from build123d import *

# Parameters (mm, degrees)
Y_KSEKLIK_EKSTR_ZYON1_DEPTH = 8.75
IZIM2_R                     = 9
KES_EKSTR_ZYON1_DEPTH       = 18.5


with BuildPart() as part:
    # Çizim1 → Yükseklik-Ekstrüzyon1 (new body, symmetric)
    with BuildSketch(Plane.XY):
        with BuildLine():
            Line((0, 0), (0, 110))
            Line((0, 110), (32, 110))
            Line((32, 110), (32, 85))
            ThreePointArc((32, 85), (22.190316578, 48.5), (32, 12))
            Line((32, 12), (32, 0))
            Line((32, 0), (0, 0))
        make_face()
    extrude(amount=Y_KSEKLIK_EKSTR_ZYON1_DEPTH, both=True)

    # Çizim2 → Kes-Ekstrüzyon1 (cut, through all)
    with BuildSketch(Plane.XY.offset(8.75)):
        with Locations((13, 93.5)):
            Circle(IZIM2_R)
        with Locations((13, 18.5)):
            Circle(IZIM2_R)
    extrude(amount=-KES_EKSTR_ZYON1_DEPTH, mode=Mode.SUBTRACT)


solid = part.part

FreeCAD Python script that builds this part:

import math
import FreeCAD as App
import Part
import Sketcher

V = App.Vector
Q = App.Units.Quantity

doc = App.newDocument("Part")
params = doc.addObject("Spreadsheet::Sheet", "Params")
for row, (alias, value) in enumerate([
    ("sketch1_width", "32 mm"),
    ("sketch1_height", "110 mm"),
    ("sketch1_height2", "12 mm"),
    ("sketch1_height3", "25 mm"),
    ("pad1_length", "17.5 mm"),
    ("sketch2_diameter", "18 mm"),
], start=1):
    params.set(f"A{row}", alias)
    params.set(f"B{row}", "=" + value)
    params.setAlias(f"B{row}", alias)

body = doc.addObject("PartDesign::Body", "Body")

sketch1 = body.newObject("Sketcher::SketchObject", "Sketch")
sketch1.AttachmentSupport = (doc.getObject("XY_Plane"), [""])
sketch1.MapMode = "FlatFace"
sketch1.addGeometry([
    Part.LineSegment(V(0, 110, 0), V(0, 0, 0)),
    Part.LineSegment(V(0, 0, 0), V(32, 0, 0)),
    Part.LineSegment(V(32, 0, 0), V(32, 12, 0)),
    Part.ArcOfCircle(Part.Circle(V(95, 48, 0), V(0, 0, 1), 73), math.radians(150), math.radians(210)),
    Part.LineSegment(V(32, 85, 0), V(32, 110, 0)),
    Part.LineSegment(V(32, 110, 0), V(0, 110, 0)),
], False)
sketch1.addConstraint([
    Sketcher.Constraint("Coincident", 0, 2, 1, 1),
    Sketcher.Constraint("Coincident", 1, 2, 2, 1),
    Sketcher.Constraint("Coincident", 2, 2, 3, 2),
    Sketcher.Constraint("Coincident", 3, 1, 4, 1),
    Sketcher.Constraint("Coincident", 4, 2, 5, 1),
    Sketcher.Constraint("Coincident", 5, 2, 0, 1),
    Sketcher.Constraint("Vertical", 0),
    Sketcher.Constraint("Horizontal", 1),
    Sketcher.Constraint("Vertical", 2),
    Sketcher.Constraint("Vertical", 4),
    Sketcher.Constraint("Horizontal", 5),
    Sketcher.Constraint("Coincident", 0, 2, -1, 1),
    Sketcher.Constraint("Vertical", 2, 2, 3, 1),
    Sketcher.Constraint("DistanceX", 1, 1, 1, 2, Q("32 mm")),
    Sketcher.Constraint("DistanceY", 0, 2, 0, 1, Q("110 mm")),
    Sketcher.Constraint("DistanceY", 2, 1, 2, 2, Q("12 mm")),
    Sketcher.Constraint("DistanceY", 4, 1, 4, 2, Q("25 mm")),
    Sketcher.Constraint("DistanceX", -1, 1, 3, 3, Q("95 mm")),
])
sketch1.setExpression("Constraints[13]", "Params.sketch1_width")
sketch1.setExpression("Constraints[14]", "Params.sketch1_height")
sketch1.setExpression("Constraints[15]", "Params.sketch1_height2")
sketch1.setExpression("Constraints[16]", "Params.sketch1_height3")
pad1 = body.newObject("PartDesign::Pad", "Pad")
pad1.Profile = sketch1
pad1.setExpression("Length", "Params.pad1_length")
pad1.Midplane = True

sketch2 = body.newObject("Sketcher::SketchObject", "Sketch001")
sketch2.AttachmentSupport = (doc.getObject("XY_Plane"), [""])
sketch2.MapMode = "FlatFace"
sketch2.AttachmentOffset = App.Placement(V(0, 0, 8.75), App.Rotation())
sketch2.addGeometry([
    Part.Circle(V(13, 94, 0), V(0, 0, 1), 9),
    Part.Circle(V(13, 18, 0), V(0, 0, 1), 9),
], False)
sketch2.addConstraint([
    Sketcher.Constraint("Equal", 0, 1),
    Sketcher.Constraint("Vertical", 0, 3, 1, 3),
    Sketcher.Constraint("Diameter", 0, Q("18 mm")),
    Sketcher.Constraint("DistanceX", -1, 1, 0, 3, Q("13 mm")),
    Sketcher.Constraint("DistanceY", 1, 3, 0, 3, Q("75 mm")),
    Sketcher.Constraint("DistanceY", -1, 1, 0, 3, Q("93.5 mm")),
])
sketch2.setExpression("Constraints[2]", "Params.sketch2_diameter")
pocket1 = body.newObject("PartDesign::Pocket", "Pocket")
pocket1.Profile = sketch2
pocket1.Type = "ThroughAll"

doc.recompute()
